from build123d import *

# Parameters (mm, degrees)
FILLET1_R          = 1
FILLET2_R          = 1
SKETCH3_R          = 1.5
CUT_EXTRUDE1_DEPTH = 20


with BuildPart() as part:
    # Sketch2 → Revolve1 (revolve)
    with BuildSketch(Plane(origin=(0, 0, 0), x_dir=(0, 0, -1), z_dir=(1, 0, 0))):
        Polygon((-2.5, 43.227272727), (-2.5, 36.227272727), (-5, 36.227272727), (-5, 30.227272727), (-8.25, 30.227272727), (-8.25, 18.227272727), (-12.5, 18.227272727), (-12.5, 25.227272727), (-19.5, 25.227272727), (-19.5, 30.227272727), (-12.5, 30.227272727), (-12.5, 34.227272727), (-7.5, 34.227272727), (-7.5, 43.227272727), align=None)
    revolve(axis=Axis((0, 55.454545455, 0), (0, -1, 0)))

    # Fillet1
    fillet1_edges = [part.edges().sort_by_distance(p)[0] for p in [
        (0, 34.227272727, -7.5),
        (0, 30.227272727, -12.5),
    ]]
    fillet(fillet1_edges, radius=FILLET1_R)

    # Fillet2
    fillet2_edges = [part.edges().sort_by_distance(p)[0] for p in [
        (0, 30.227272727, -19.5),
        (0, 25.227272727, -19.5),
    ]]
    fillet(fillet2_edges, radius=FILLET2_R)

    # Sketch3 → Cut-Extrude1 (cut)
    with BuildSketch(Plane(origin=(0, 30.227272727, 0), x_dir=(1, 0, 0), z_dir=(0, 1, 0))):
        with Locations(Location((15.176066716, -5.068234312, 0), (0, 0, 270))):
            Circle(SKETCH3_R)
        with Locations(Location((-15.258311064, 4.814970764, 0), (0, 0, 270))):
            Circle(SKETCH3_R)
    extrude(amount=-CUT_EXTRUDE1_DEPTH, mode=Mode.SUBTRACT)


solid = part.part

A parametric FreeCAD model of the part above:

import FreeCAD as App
import Part
import Sketcher
Q = App.Units.Quantity


def edges_at(feature, points):
    """Names of the edges that pass closest to the given points."""
    edges = feature.Shape.Edges
    near = lambda p: min(range(len(edges)), key=lambda i: edges[i].distToShape(Part.Vertex(*p))[0])
    return sorted({f"Edge{near(p) + 1}" for p in points})


def add_polygon(sketch, points):
    """Adds a closed chain of lines whose ends are joined by coincident constraints."""
    first, n = sketch.GeometryCount, len(points)
    for a, b in zip(points, points[1:] + points[:1]):
        sketch.addGeometry(Part.LineSegment(App.Vector(*a, 0), App.Vector(*b, 0)), False)
    for i in range(n):
        sketch.addConstraint(Sketcher.Constraint("Coincident", first + i, 2, first + (i + 1) % n, 1))

doc = App.newDocument("Part")
body = doc.addObject("PartDesign::Body", "Body")

# Sketch on YZ plane
sketch1 = body.newObject("Sketcher::SketchObject", "Sketch")
sketch1.AttachmentSupport = (doc.getObject("YZ_Plane"), [""])
sketch1.MapMode = "FlatFace"
add_polygon(sketch1, [(36.227273, 2.5), (43.227273, 2.5), (43.227273, 7.5), (34.227273, 7.5), (34.227273, 12.5), (30.227273, 12.5), (30.227273, 19.5), (25.227273, 19.5), (25.227273, 12.5), (18.227273, 12.5), (18.227273, 8.25), (30.227273, 8.25), (30.227273, 5), (36.227273, 5)])  # lines 0-13
sketch1.addConstraint([
    Sketcher.Constraint("Horizontal", 0),
    Sketcher.Constraint("Vertical", 1),
    Sketcher.Constraint("Horizontal", 2),
    Sketcher.Constraint("Vertical", 3),
    Sketcher.Constraint("Horizontal", 4),
    Sketcher.Constraint("Vertical", 5),
    Sketcher.Constraint("Horizontal", 6),
    Sketcher.Constraint("Vertical", 7),
    Sketcher.Constraint("Horizontal", 8),
    Sketcher.Constraint("Vertical", 9),
    Sketcher.Constraint("Horizontal", 10),
    Sketcher.Constraint("Vertical", 11),
    Sketcher.Constraint("Horizontal", 12),
    Sketcher.Constraint("Vertical", 13),
    Sketcher.Constraint("Horizontal", 4, 2, 7, 2),
    Sketcher.Constraint("Vertical", 5, 2, 10, 2),
    Sketcher.Constraint("Equal", 0, 8),
    Sketcher.Constraint("Equal", 6, 1),
    Sketcher.Constraint("Equal", 1, 3),
    Sketcher.Constraint("Equal", 8, 5),
    Sketcher.Constraint("DistanceX", 0, 1, 0, 2, Q("7 mm")),
    Sketcher.Constraint("DistanceX", 2, 2, 2, 1, Q("9 mm")),
    Sketcher.Constraint("DistanceX", 4, 2, 4, 1, Q("4 mm")),
    Sketcher.Constraint("DistanceX", 6, 2, 6, 1, Q("5 mm")),
    Sketcher.Constraint("DistanceY", 13, 2, 13, 1, Q("2.5 mm")),
    Sketcher.Constraint("DistanceY", -1, 1, 11, 2, Q("5 mm")),
    Sketcher.Constraint("DistanceY", 9, 2, 9, 1, Q("4.25 mm")),
    Sketcher.Constraint("DistanceX", -1, 1, 0, 2, Q("43.227273 mm")),
])
revolution = body.newObject("PartDesign::Revolution", "Revolution")
revolution.Profile = sketch1
revolution.ReferenceAxis = (sketch1, ["H_Axis"])
revolution.Angle = 360
doc.recompute()

fillet = body.newObject("PartDesign::Fillet", "Fillet")
fillet.Base = (revolution, edges_at(revolution, [(0, 34.227, -7.5), (0, 30.227, -12.5)]))
fillet.Radius = 1
doc.recompute()

fillet2 = body.newObject("PartDesign::Fillet", "Fillet001")
fillet2.Base = (fillet, edges_at(fillet, [(0, 30.227, -19.5), (0, 25.227, -19.5)]))
fillet2.Radius = 1

# Sketch on XZ plane
sketch2 = body.newObject("Sketcher::SketchObject", "Sketch001")
sketch2.AttachmentSupport = (doc.getObject("XZ_Plane"), [""])
sketch2.MapMode = "FlatFace"
sketch2.AttachmentOffset = App.Placement(App.Vector(0, 0, -30.227273), App.Rotation())
sketch2.addGeometry([
    Part.Circle(App.Vector(15.176067, 5.068234, 0), App.Vector(0, 0, 1), 1.5),
    Part.Circle(App.Vector(-15.258311, -4.814971, 0), App.Vector(0, 0, 1), 1.5),
], False)
sketch2.addConstraint([
    Sketcher.Constraint("Equal", 0, 1),
    Sketcher.Constraint("Diameter", 0, Q("3 mm")),
    Sketcher.Constraint("DistanceX", 1, 3, -1, 1, Q("15.258311 mm")),
    Sketcher.Constraint("DistanceY", 1, 3, -1, 1, Q("4.814971 mm")),
    Sketcher.Constraint("DistanceX", -1, 1, 0, 3, Q("15.176067 mm")),
    Sketcher.Constraint("DistanceY", -1, 1, 0, 3, Q("5.068234 mm")),
])
pocket1 = body.newObject("PartDesign::Pocket", "Pocket")
pocket1.Profile = sketch2
pocket1.Length = 20
pocket1.Reversed = True

doc.recompute()
